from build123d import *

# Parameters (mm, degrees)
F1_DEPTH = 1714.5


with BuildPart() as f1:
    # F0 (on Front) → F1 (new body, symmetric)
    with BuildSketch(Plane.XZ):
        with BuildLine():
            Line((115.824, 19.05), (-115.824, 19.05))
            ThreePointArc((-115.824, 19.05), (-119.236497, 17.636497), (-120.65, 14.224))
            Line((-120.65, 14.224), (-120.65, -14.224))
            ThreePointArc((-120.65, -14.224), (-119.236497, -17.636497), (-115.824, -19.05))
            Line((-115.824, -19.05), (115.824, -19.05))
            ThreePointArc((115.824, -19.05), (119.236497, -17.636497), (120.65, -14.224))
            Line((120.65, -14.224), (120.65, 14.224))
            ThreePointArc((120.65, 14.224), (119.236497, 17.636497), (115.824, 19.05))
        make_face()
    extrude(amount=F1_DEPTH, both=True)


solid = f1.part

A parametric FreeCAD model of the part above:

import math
import FreeCAD as App
import Part
import Sketcher

V = App.Vector
Q = App.Units.Quantity

doc = App.newDocument("Part")
params = doc.addObject("Spreadsheet::Sheet", "Params")
for row, (alias, value) in enumerate([
    ("sketch1_radius", "0.19 in"),
    ("sketch1_width", "9.12 in"),
    ("sketch1_height", "1.12 in"),
    ("pad1_length", "135 in"),
], start=1):
    params.set(f"A{row}", alias)
    params.set(f"B{row}", "=" + value)
    params.setAlias(f"B{row}", alias)

body = doc.addObject("PartDesign::Body", "Body")

sketch1 = body.newObject("Sketcher::SketchObject", "Sketch")
sketch1.AttachmentSupport = (doc.getObject("XZ_Plane"), [""])
sketch1.MapMode = "FlatFace"
sketch1.addGeometry(Part.LineSegment(V(115.824, 19.05, 0), V(-115.824, 19.05, 0)), False)
sketch1.addGeometry(Part.ArcOfCircle(Part.Circle(V(-115.823999, 14.223999, 0), V(0, 0, 1), 4.826001), math.radians(90.000013), math.radians(179.999987)), False)
sketch1.addGeometry(Part.LineSegment(V(-120.65, 14.224, 0), V(-120.65, -14.224, 0)), False)
sketch1.addGeometry(Part.ArcOfCircle(Part.Circle(V(-115.823999, -14.223999, 0), V(0, 0, 1), 4.826001), math.radians(-179.999987), math.radians(-90.000013)), False)
sketch1.addGeometry(Part.LineSegment(V(-115.824, -19.05, 0), V(115.824, -19.05, 0)), False)
sketch1.addGeometry(Part.ArcOfCircle(Part.Circle(V(115.823999, -14.223999, 0), V(0, 0, 1), 4.826001), math.radians(-89.999987), math.radians(-0.000013)), False)
sketch1.addGeometry(Part.LineSegment(V(120.65, -14.224, 0), V(120.65, 14.224, 0)), False)
sketch1.addGeometry(Part.ArcOfCircle(Part.Circle(V(115.823999, 14.223999, 0), V(0, 0, 1), 4.826001), math.radians(0.000013), math.radians(89.999987)), False)
sketch1.addConstraint(Sketcher.Constraint("Tangent", 0, 2, 1, 1))
sketch1.addConstraint(Sketcher.Constraint("Tangent", 1, 2, 2, 1))
sketch1.addConstraint(Sketcher.Constraint("Tangent", 2, 2, 3, 1))
sketch1.addConstraint(Sketcher.Constraint("Tangent", 3, 2, 4, 1))
sketch1.addConstraint(Sketcher.Constraint("Tangent", 4, 2, 5, 1))
sketch1.addConstraint(Sketcher.Constraint("Tangent", 5, 2, 6, 1))
sketch1.addConstraint(Sketcher.Constraint("Tangent", 6, 2, 7, 1))
sketch1.addConstraint(Sketcher.Constraint("Tangent", 7, 2, 0, 1))
sketch1.addConstraint(Sketcher.Constraint("Horizontal", 0))
sketch1.addConstraint(Sketcher.Constraint("Vertical", 2))
sketch1.addConstraint(Sketcher.Constraint("Horizontal", 4))
sketch1.addConstraint(Sketcher.Constraint("Vertical", 6))
sketch1.addConstraint(Sketcher.Constraint("Equal", 1, 3))
sketch1.addConstraint(Sketcher.Constraint("Equal", 3, 5))
sketch1.addConstraint(Sketcher.Constraint("Equal", 5, 7))
sketch1.addConstraint(Sketcher.Constraint("Symmetric", 1, 3, 5, 3, -1, 1))
sketch1.addConstraint(Sketcher.Constraint("Radius", 1, Q("0.19 in")))
sketch1.addConstraint(Sketcher.Constraint("DistanceX", 0, 2, 0, 1, Q("9.12 in")))
sketch1.addConstraint(Sketcher.Constraint("DistanceY", 2, 2, 2, 1, Q("1.12 in")))
sketch1.setExpression("Constraints[16]", "Params.sketch1_radius")
sketch1.setExpression("Constraints[17]", "Params.sketch1_width")
sketch1.setExpression("Constraints[18]", "Params.sketch1_height")
pad1 = body.newObject("PartDesign::Pad", "Pad")
pad1.Profile = sketch1
pad1.setExpression("Length", "Params.pad1_length")
pad1.Midplane = True

doc.recompute()
